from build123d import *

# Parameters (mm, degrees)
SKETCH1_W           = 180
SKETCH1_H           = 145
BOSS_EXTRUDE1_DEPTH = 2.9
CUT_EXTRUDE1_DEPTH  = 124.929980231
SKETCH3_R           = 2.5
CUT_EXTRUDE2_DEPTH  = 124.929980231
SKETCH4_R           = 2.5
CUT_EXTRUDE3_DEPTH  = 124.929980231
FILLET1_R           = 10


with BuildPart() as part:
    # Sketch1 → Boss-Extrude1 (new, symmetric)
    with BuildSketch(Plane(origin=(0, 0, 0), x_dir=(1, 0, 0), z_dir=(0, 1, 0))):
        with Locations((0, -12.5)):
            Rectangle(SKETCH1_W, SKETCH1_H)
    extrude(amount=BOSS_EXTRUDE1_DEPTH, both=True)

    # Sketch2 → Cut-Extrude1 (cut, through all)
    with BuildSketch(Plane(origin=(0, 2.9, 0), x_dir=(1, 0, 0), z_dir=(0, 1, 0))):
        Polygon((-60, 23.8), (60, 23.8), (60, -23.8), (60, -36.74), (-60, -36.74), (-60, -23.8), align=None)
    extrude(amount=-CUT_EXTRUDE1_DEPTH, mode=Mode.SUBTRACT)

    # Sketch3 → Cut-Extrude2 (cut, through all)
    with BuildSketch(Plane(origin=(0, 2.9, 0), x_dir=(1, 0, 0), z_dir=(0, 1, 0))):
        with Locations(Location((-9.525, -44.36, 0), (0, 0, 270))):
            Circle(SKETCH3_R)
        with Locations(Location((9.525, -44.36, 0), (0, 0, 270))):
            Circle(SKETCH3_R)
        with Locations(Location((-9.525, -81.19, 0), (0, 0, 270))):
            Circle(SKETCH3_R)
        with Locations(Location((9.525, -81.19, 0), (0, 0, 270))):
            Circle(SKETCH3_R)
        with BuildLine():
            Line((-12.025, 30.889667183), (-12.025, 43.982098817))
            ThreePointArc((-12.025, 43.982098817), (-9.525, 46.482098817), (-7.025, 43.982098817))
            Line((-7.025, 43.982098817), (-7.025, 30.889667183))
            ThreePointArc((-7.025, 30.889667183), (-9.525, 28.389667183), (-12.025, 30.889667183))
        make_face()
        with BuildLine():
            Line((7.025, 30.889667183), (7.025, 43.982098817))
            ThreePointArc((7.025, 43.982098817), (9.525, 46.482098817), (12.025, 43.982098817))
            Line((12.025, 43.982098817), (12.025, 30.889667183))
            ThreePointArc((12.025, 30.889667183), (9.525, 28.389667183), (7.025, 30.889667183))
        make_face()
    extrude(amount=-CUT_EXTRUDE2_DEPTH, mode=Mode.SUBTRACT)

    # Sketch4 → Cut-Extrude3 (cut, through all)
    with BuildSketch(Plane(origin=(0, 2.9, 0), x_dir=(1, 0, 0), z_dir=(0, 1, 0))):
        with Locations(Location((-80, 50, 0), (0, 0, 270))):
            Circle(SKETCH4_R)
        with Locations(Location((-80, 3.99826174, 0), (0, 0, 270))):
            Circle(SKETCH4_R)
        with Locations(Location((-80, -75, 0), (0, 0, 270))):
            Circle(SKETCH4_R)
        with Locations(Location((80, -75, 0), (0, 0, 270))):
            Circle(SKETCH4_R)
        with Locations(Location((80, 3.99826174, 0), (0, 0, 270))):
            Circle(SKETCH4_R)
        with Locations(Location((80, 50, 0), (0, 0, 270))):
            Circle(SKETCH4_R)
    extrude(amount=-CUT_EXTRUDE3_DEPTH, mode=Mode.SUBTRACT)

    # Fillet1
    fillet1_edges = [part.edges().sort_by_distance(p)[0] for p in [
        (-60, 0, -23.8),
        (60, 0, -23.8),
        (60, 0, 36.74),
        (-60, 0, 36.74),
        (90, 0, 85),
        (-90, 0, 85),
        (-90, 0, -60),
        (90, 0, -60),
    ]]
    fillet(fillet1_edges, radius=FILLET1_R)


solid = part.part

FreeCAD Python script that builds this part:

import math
import FreeCAD as App
import Part
import Sketcher

V = App.Vector


def edges_at(feature, points):
    """Names of the edges that pass closest to the given points."""
    edges = feature.Shape.Edges
    near = lambda p: min(range(len(edges)), key=lambda i: edges[i].distToShape(Part.Vertex(*p))[0])
    return sorted({f"Edge{near(p) + 1}" for p in points})

doc = App.newDocument("Part")
params = doc.addObject("Spreadsheet::Sheet", "Params")
for row, (alias, value) in enumerate([
    ("sketch1_width", "180 mm"),
    ("sketch1_height", "145 mm"),
    ("pad1_length", "5.8 mm"),
    ("sketch2_width", "120 mm"),
    ("sketch2_height", "60.54 mm"),
    ("sketch3_diameter", "5 mm"),
    ("sketch4_diameter", "5 mm"),
    ("fillet_radius", "10 mm"),
], start=1):
    params.set(f"A{row}", alias)
    params.set(f"B{row}", "=" + value)
    params.setAlias(f"B{row}", alias)

body = doc.addObject("PartDesign::Body", "Body")

sketch1 = body.newObject("Sketcher::SketchObject", "Sketch")
sketch1.AttachmentSupport = (doc.getObject("XZ_Plane"), [""])
sketch1.MapMode = "FlatFace"
sketch1.addGeometry([
    Part.LineSegment(V(-90, -60, 0), V(-90, 85, 0)),
    Part.LineSegment(V(-90, 85, 0), V(90, 85, 0)),
    Part.LineSegment(V(90, 85, 0), V(90, -60, 0)),
    Part.LineSegment(V(90, -60, 0), V(-90, -60, 0)),
], False)
sketch1.addConstraint([
    Sketcher.Constraint("Coincident", 0, 2, 1, 1),
    Sketcher.Constraint("Coincident", 1, 2, 2, 1),
    Sketcher.Constraint("Coincident", 2, 2, 3, 1),
    Sketcher.Constraint("Coincident", 3, 2, 0, 1),
    Sketcher.Constraint("Vertical", 0),
    Sketcher.Constraint("Horizontal", 1),
    Sketcher.Constraint("Vertical", 2),
    Sketcher.Constraint("Horizontal", 3),
    Sketcher.Constraint("DistanceX", 1, 1, 1, 2, 180.0),
    Sketcher.Constraint("DistanceY", 0, 1, 0, 2, 145.0),
    Sketcher.Constraint("DistanceX", 0, 2, -1, 1, 90.0),
    Sketcher.Constraint("DistanceY", -1, 1, 0, 2, 85.0),
])
sketch1.setExpression("Constraints[8]", "Params.sketch1_width")
sketch1.setExpression("Constraints[9]", "Params.sketch1_height")
pad1 = body.newObject("PartDesign::Pad", "Pad")
pad1.Profile = sketch1
pad1.setExpression("Length", "Params.pad1_length")
pad1.Midplane = True

sketch2 = body.newObject("Sketcher::SketchObject", "Sketch001")
sketch2.AttachmentSupport = (doc.getObject("XZ_Plane"), [""])
sketch2.MapMode = "FlatFace"
sketch2.AttachmentOffset = App.Placement(V(0, 0, -2.9), App.Rotation())
sketch2.addGeometry([
    Part.LineSegment(V(60, -24, 0), V(-60, -24, 0)),
    Part.LineSegment(V(-60, -24, 0), V(-60, 37, 0)),
    Part.LineSegment(V(-60, 37, 0), V(60, 37, 0)),
    Part.LineSegment(V(60, 37, 0), V(60, -24, 0)),
], False)
sketch2.addConstraint([
    Sketcher.Constraint("Coincident", 0, 2, 1, 1),
    Sketcher.Constraint("Coincident", 1, 2, 2, 1),
    Sketcher.Constraint("Coincident", 2, 2, 3, 1),
    Sketcher.Constraint("Coincident", 3, 2, 0, 1),
    Sketcher.Constraint("Horizontal", 0),
    Sketcher.Constraint("Vertical", 1),
    Sketcher.Constraint("Horizontal", 2),
    Sketcher.Constraint("Vertical", 3),
    Sketcher.Constraint("DistanceX", 0, 2, 0, 1, 120.0),
    Sketcher.Constraint("DistanceX", 0, 2, -1, 1, 60.0),
    Sketcher.Constraint("DistanceY", 1, 1, 1, 2, 60.54),
    Sketcher.Constraint("DistanceY", 0, 2, -1, 1, 23.8),
])
sketch2.setExpression("Constraints[8]", "Params.sketch2_width")
sketch2.setExpression("Constraints[10]", "Params.sketch2_height")
pocket1 = body.newObject("PartDesign::Pocket", "Pocket")
pocket1.Profile = sketch2
pocket1.Type = "ThroughAll"
pocket1.Reversed = True

sketch3 = body.newObject("Sketcher::SketchObject", "Sketch002")
sketch3.AttachmentSupport = (doc.getObject("XZ_Plane"), [""])
sketch3.MapMode = "FlatFace"
sketch3.AttachmentOffset = App.Placement(V(0, 0, -2.9), App.Rotation())
sketch3.addGeometry([
    Part.Circle(V(-9.5, 44.4, 0), V(0, 0, 1), 2.5),
    Part.Circle(V(9.5, 44.4, 0), V(0, 0, 1), 2.5),
    Part.Circle(V(-9.5, 81.2, 0), V(0, 0, 1), 2.5),
    Part.Circle(V(9.5, 81.2, 0), V(0, 0, 1), 2.5),
    Part.LineSegment(V(-12, -44, 0), V(-12, -30.9, 0)),
    Part.ArcOfCircle(Part.Circle(V(-9.5, -30.9, 0), V(0, 0, 1), 2.5), math.radians(0), math.radians(180)),
    Part.LineSegment(V(-7, -30.9, 0), V(-7, -44, 0)),
    Part.ArcOfCircle(Part.Circle(V(-9.5, -44, 0), V(0, 0, 1), 2.5), math.radians(180), math.radians(360)),
    Part.LineSegment(V(7, -44, 0), V(7, -30.9, 0)),
    Part.ArcOfCircle(Part.Circle(V(9.5, -30.9, 0), V(0, 0, 1), 2.5), math.radians(0), math.radians(180)),
    Part.LineSegment(V(12, -30.9, 0), V(12, -44, 0)),
    Part.ArcOfCircle(Part.Circle(V(9.5, -44, 0), V(0, 0, 1), 2.5), math.radians(180), math.radians(360)),
], False)
sketch3.addConstraint([
    Sketcher.Constraint("Tangent", 4, 2, 5, 2),
    Sketcher.Constraint("Tangent", 5, 1, 6, 1),
    Sketcher.Constraint("Tangent", 6, 2, 7, 2),
    Sketcher.Constraint("Tangent", 7, 1, 4, 1),
    Sketcher.Constraint("Tangent", 8, 2, 9, 2),
    Sketcher.Constraint("Tangent", 9, 1, 10, 1),
    Sketcher.Constraint("Tangent", 10, 2, 11, 2),
    Sketcher.Constraint("Tangent", 11, 1, 8, 1),
    Sketcher.Constraint("Vertical", 4),
    Sketcher.Constraint("Vertical", 6),
    Sketcher.Constraint("Vertical", 8),
    Sketcher.Constraint("Vertical", 10),
    Sketcher.Constraint("Equal", 0, 1),
    Sketcher.Constraint("Equal", 1, 2),
    Sketcher.Constraint("Equal", 2, 3),
    Sketcher.Constraint("Equal", 3, 5),
    Sketcher.Constraint("Equal", 7, 9),
    Sketcher.Constraint("Symmetric", 0, 3, 1, 3, -2),
    Sketcher.Constraint("Symmetric", 2, 3, 3, 3, -2),
    Sketcher.Constraint("Symmetric", 5, 3, 9, 3, -2),
    Sketcher.Constraint("Horizontal", 7, 3, 11, 3),
    Sketcher.Constraint("Vertical", 0, 3, 2, 3),
    Sketcher.Constraint("Vertical", 2, 3, 5, 3),
    Sketcher.Constraint("Diameter", 0, 5.0),
    Sketcher.Constraint("DistanceY", -1, 1, 0, 3, 44.36),
    Sketcher.Constraint("DistanceY", -1, 1, 2, 3, 81.19),
    Sketcher.Constraint("DistanceX", 0, 3, 1, 3, 19.05),
    Sketcher.Constraint("DistanceY", 4, 1, 4, 2, 13.092432),
    Sketcher.Constraint("DistanceY", 7, 3, -1, 1, 43.982099),
])
sketch3.setExpression("Constraints[23]", "Params.sketch3_diameter")
pocket2 = body.newObject("PartDesign::Pocket", "Pocket001")
pocket2.Profile = sketch3
pocket2.Type = "ThroughAll"
pocket2.Reversed = True

sketch4 = body.newObject("Sketcher::SketchObject", "Sketch003")
sketch4.AttachmentSupport = (doc.getObject("XZ_Plane"), [""])
sketch4.MapMode = "FlatFace"
sketch4.AttachmentOffset = App.Placement(V(0, 0, -2.9), App.Rotation())
sketch4.addGeometry([
    Part.Circle(V(-80, -50, 0), V(0, 0, 1), 2.5),
    Part.Circle(V(-80, -4, 0), V(0, 0, 1), 2.5),
    Part.Circle(V(-80, 75, 0), V(0, 0, 1), 2.5),
    Part.Circle(V(80, 75, 0), V(0, 0, 1), 2.5),
    Part.Circle(V(80, -4, 0), V(0, 0, 1), 2.5),
    Part.Circle(V(80, -50, 0), V(0, 0, 1), 2.5),
], False)
sketch4.addConstraint([
    Sketcher.Constraint("Equal", 0, 1),
    Sketcher.Constraint("Equal", 1, 2),
    Sketcher.Constraint("Equal", 2, 3),
    Sketcher.Constraint("Equal", 3, 4),
    Sketcher.Constraint("Equal", 4, 5),
    Sketcher.Constraint("Symmetric", 2, 3, 3, 3, -2),
    Sketcher.Constraint("Symmetric", 1, 3, 4, 3, -2),
    Sketcher.Constraint("Symmetric", 0, 3, 5, 3, -2),
    Sketcher.Constraint("Vertical", 0, 3, 1, 3),
    Sketcher.Constraint("Vertical", 1, 3, 2, 3),
    Sketcher.Constraint("Diameter", 0, 5.0),
    Sketcher.Constraint("DistanceX", 0, 3, -1, 1, 80.0),
    Sketcher.Constraint("DistanceY", 0, 3, -1, 1, 50.0),
    Sketcher.Constraint("DistanceY", -1, 1, 2, 3, 75.0),
    Sketcher.Constraint("DistanceY", 1, 3, -1, 1, 3.998262),
])
sketch4.setExpression("Constraints[10]", "Params.sketch4_diameter")
pocket3 = body.newObject("PartDesign::Pocket", "Pocket002")
pocket3.Profile = sketch4
pocket3.Type = "ThroughAll"
pocket3.Reversed = True
doc.recompute()

fillet = body.newObject("PartDesign::Fillet", "Fillet")
fillet.Base = (pocket3, edges_at(pocket3, [
    (-60, 0, -23.8),
    (60, 0, -23.8),
    (60, 0, 36.74),
    (-60, 0, 36.74),
    (90, 0, 85),
    (-90, 0, 85),
    (-90, 0, -60),
    (90, 0, -60),
]))
fillet.setExpression("Radius", "Params.fillet_radius")

doc.recompute()
